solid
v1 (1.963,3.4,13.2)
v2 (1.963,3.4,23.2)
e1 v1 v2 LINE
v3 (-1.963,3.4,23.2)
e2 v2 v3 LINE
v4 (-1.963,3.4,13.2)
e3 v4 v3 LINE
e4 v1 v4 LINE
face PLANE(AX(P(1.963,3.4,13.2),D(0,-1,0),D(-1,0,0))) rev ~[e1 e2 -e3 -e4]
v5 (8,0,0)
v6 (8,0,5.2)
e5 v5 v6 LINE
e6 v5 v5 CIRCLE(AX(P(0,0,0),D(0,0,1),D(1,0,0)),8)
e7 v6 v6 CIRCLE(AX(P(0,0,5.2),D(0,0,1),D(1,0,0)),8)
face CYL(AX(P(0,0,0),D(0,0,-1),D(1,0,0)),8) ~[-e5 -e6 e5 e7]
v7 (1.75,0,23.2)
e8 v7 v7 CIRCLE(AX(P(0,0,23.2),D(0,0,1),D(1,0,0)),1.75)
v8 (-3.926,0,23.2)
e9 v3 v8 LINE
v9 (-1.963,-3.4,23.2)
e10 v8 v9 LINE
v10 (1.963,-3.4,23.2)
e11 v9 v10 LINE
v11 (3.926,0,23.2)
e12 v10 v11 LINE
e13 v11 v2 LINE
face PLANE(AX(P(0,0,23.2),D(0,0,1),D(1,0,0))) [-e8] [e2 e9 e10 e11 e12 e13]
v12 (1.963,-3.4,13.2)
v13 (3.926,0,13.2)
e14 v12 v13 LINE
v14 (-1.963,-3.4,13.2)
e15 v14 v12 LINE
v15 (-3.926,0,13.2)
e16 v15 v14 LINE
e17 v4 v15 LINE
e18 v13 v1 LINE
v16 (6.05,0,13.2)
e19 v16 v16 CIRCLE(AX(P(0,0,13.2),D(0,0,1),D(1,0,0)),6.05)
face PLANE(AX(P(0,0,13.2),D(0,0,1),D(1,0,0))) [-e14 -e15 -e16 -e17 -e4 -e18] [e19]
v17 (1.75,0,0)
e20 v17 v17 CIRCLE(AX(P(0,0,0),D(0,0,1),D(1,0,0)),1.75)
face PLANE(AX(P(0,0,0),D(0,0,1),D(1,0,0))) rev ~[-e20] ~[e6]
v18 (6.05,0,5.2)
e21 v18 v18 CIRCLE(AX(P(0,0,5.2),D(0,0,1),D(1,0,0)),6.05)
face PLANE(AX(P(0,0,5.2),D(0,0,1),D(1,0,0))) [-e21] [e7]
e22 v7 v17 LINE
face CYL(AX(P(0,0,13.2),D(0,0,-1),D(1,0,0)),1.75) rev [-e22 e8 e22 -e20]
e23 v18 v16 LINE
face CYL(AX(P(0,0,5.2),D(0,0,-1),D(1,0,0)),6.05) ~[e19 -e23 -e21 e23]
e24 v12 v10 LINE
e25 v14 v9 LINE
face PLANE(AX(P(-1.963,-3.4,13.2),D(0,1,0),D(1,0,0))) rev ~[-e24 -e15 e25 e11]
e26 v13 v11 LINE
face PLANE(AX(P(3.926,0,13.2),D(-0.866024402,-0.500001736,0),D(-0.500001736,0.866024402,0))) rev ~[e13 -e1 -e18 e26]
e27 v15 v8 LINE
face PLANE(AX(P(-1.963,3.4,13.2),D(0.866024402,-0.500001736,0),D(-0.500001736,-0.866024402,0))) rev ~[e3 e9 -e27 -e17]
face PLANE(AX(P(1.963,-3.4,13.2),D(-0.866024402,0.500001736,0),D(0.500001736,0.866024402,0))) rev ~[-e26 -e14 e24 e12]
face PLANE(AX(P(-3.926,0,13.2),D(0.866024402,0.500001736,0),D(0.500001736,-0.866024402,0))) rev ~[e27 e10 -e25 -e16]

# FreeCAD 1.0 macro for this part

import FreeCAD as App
import Part
import Sketcher
from FreeCAD import Vector
Q = App.Units.Quantity


def add_polygon(sketch, points):
    """Adds a closed chain of lines whose ends are joined by coincident constraints."""
    first, n = sketch.GeometryCount, len(points)
    for a, b in zip(points, points[1:] + points[:1]):
        sketch.addGeometry(Part.LineSegment(App.Vector(*a, 0), App.Vector(*b, 0)), False)
    for i in range(n):
        sketch.addConstraint(Sketcher.Constraint("Coincident", first + i, 2, first + (i + 1) % n, 1))

doc = App.newDocument("Part")
body = doc.addObject("PartDesign::Body", "Body")

# Sketch on XY plane
sketch1 = body.newObject("Sketcher::SketchObject", "Sketch")
sketch1.AttachmentSupport = (doc.getObject("XY_Plane"), [""])
sketch1.MapMode = "FlatFace"
sketch1.addGeometry([
    Part.Circle(Vector(0, 0, 0), Vector(0, 0, 1), 8),
    Part.Circle(Vector(0, 0, 0), Vector(0, 0, 1), 1.8),
], False)
sketch1.addConstraint([
    Sketcher.Constraint("Coincident", 0, 3, -1, 1),
    Sketcher.Constraint("Coincident", 1, 3, -1, 1),
    Sketcher.Constraint("Diameter", 0, 16.0),
    Sketcher.Constraint("Diameter", 1, 3.5),
])
pad1 = body.newObject("PartDesign::Pad", "Pad")
pad1.Profile = sketch1
pad1.Length = 5.2

# Sketch on XY plane
sketch2 = body.newObject("Sketcher::SketchObject", "Sketch001")
sketch2.AttachmentSupport = (doc.getObject("XY_Plane"), [""])
sketch2.MapMode = "FlatFace"
sketch2.AttachmentOffset = App.Placement(Vector(0, 0, 5.2), App.Rotation())
sketch2.addGeometry([
    Part.Circle(Vector(0, 0, 0), Vector(0, 0, 1), 6),
    Part.Circle(Vector(0, 0, 0), Vector(0, 0, 1), 1.8),
], False)
sketch2.addConstraint([
    Sketcher.Constraint("Coincident", 0, 3, -1, 1),
    Sketcher.Constraint("Coincident", 1, 3, -1, 1),
    Sketcher.Constraint("Diameter", 0, 12.1),
    Sketcher.Constraint("Diameter", 1, 3.5),
])
pad2 = body.newObject("PartDesign::Pad", "Pad001")
pad2.Profile = sketch2
pad2.Length = 8

# Sketch on XY plane
sketch3 = body.newObject("Sketcher::SketchObject", "Sketch002")
sketch3.AttachmentSupport = (doc.getObject("XY_Plane"), [""])
sketch3.MapMode = "FlatFace"
sketch3.AttachmentOffset = App.Placement(Vector(0, 0, 13.2), App.Rotation())
add_polygon(sketch3, [(2, 3.4), (-2, 3.4), (-3.9, 0), (-2, -3.4), (2, -3.4), (3.9, 0)])  # lines 0-5
sketch3.addGeometry(Part.Circle(Vector(0, 0, 0), Vector(0, 0, 1), 1.8), False)  # 6
sketch3.addConstraint([
    Sketcher.Constraint("Horizontal", 0),
    Sketcher.Constraint("Horizontal", 3),
    Sketcher.Constraint("Coincident", 6, 3, -1, 1),
    Sketcher.Constraint("Symmetric", 0, 2, 3, 2, -1, 1),
    Sketcher.Constraint("Symmetric", 1, 2, 4, 2, -1, 1),
    Sketcher.Constraint("PointOnObject", 1, 2, -1),
    Sketcher.Constraint("Parallel", 2, 5),
    Sketcher.Constraint("Vertical", 0, 2, 2, 2),
    Sketcher.Constraint("Diameter", 6, 3.5),
    Sketcher.Constraint("DistanceY", 2, 2, 0, 2, 6.8),
    Sketcher.Constraint("Angle", 1, Q("-120 deg")),
    Sketcher.Constraint("DistanceX", 0, 2, 0, 1, 3.926),
])
pad3 = body.newObject("PartDesign::Pad", "Pad002")
pad3.Profile = sketch3
pad3.Length = 10

doc.recompute()
